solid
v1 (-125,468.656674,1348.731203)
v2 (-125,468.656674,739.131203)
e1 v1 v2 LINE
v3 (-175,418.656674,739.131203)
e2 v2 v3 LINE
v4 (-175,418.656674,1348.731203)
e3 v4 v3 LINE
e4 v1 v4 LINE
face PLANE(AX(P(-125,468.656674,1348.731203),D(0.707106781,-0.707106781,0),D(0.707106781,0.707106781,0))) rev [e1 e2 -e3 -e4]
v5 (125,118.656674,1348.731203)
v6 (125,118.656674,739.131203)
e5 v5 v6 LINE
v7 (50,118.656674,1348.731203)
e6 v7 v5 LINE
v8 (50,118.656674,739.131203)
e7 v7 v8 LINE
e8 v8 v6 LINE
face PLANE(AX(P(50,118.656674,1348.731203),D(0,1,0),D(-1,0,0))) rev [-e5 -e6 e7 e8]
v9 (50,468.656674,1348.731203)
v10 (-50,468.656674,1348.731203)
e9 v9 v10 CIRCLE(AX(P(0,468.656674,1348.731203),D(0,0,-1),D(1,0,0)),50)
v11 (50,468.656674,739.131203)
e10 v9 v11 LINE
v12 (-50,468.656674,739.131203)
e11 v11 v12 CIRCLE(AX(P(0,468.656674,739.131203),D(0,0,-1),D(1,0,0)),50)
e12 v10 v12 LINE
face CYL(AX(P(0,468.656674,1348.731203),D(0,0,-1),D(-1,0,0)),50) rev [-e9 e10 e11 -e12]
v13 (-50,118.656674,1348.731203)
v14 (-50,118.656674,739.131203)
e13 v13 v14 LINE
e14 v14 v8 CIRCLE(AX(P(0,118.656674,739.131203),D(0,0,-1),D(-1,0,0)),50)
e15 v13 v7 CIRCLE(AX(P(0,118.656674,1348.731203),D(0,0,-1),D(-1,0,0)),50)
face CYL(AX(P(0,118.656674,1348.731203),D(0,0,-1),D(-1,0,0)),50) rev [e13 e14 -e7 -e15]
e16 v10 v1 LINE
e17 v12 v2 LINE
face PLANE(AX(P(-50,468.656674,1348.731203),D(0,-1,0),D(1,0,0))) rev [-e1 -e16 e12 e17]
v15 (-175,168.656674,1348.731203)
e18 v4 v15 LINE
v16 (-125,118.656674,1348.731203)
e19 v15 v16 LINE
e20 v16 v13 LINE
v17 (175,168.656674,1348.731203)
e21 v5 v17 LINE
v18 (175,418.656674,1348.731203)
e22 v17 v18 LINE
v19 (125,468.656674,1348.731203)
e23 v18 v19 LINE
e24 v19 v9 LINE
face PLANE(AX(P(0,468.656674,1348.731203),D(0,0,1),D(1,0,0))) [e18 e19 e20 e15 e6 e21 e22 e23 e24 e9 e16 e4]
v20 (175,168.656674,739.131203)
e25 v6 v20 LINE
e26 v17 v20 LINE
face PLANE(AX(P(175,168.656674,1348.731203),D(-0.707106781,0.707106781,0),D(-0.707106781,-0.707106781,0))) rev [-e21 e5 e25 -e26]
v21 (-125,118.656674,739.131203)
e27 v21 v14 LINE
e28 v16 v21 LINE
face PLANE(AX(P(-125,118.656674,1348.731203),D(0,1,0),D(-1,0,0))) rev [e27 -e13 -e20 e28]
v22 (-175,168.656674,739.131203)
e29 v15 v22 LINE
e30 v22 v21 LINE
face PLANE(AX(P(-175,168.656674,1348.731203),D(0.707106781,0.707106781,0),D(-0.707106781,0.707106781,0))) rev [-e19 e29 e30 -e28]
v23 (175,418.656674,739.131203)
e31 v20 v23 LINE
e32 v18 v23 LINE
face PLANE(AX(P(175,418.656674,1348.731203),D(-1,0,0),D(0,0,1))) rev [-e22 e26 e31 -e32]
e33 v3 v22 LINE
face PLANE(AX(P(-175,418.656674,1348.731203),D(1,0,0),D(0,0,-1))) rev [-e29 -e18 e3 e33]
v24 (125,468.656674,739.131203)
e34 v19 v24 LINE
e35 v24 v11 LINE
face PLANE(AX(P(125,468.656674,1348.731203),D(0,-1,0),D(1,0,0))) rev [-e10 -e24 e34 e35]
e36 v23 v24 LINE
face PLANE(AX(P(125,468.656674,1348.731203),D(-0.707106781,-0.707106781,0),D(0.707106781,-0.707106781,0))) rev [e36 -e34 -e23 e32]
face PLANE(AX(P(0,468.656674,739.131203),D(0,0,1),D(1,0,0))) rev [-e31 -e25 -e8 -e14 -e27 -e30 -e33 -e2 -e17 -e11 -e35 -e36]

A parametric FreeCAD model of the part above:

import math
import FreeCAD as App
import Part
import Sketcher
from FreeCAD import Vector
Q = App.Units.Quantity

doc = App.newDocument("Part")
params = doc.addObject("Spreadsheet::Sheet", "Params")
for row, (alias, value) in enumerate([
    ("sketch1_radius", "50 mm"),
    ("sketch1_width", "75 mm"),
    ("sketch1_height", "250 mm"),
    ("pad1_length", "609.6 mm"),
], start=1):
    params.set(f"A{row}", alias)
    params.set(f"B{row}", "=" + value)
    params.setAlias(f"B{row}", alias)

body = doc.addObject("PartDesign::Body", "Body")

sketch1 = doc.addObject("Sketcher::SketchObject", "Sketch")
body.addObject(sketch1)
sketch1.AttachmentSupport = (doc.XY_Plane, [""])
sketch1.MapMode = "FlatFace"
sketch1.AttachmentOffset = App.Placement(Vector(0, 0, 1043.931203), App.Rotation())
sketch1.addGeometry([
    Part.LineSegment(Vector(125, 469, 0), Vector(50, 469, 0)),
    Part.ArcOfCircle(Part.Circle(Vector(0, 469, 0), Vector(0, 0, 1), 50), math.radians(180), math.radians(360)),
    Part.LineSegment(Vector(-50, 469, 0), Vector(-125, 469, 0)),
    Part.LineSegment(Vector(-125, 469, 0), Vector(-175, 419, 0)),
    Part.LineSegment(Vector(-175, 419, 0), Vector(-175, 169, 0)),
    Part.LineSegment(Vector(-175, 169, 0), Vector(-125, 119, 0)),
    Part.LineSegment(Vector(-125, 119, 0), Vector(-50, 119, 0)),
    Part.ArcOfCircle(Part.Circle(Vector(0, 119, 0), Vector(0, 0, 1), 50), math.radians(0), math.radians(180)),
    Part.LineSegment(Vector(50, 119, 0), Vector(125, 119, 0)),
    Part.LineSegment(Vector(125, 119, 0), Vector(175, 169, 0)),
    Part.LineSegment(Vector(175, 169, 0), Vector(175, 419, 0)),
    Part.LineSegment(Vector(175, 419, 0), Vector(125, 469, 0)),
], False)
sketch1.addConstraint([
    Sketcher.Constraint("Coincident", 0, 2, 1, 2),
    Sketcher.Constraint("Coincident", 1, 1, 2, 1),
    Sketcher.Constraint("Coincident", 2, 2, 3, 1),
    Sketcher.Constraint("Coincident", 3, 2, 4, 1),
    Sketcher.Constraint("Coincident", 4, 2, 5, 1),
    Sketcher.Constraint("Coincident", 5, 2, 6, 1),
    Sketcher.Constraint("Coincident", 6, 2, 7, 2),
    Sketcher.Constraint("Coincident", 7, 1, 8, 1),
    Sketcher.Constraint("Coincident", 8, 2, 9, 1),
    Sketcher.Constraint("Coincident", 9, 2, 10, 1),
    Sketcher.Constraint("Coincident", 10, 2, 11, 1),
    Sketcher.Constraint("Coincident", 11, 2, 0, 1),
    Sketcher.Constraint("Horizontal", 0),
    Sketcher.Constraint("Horizontal", 2),
    Sketcher.Constraint("Vertical", 4),
    Sketcher.Constraint("Horizontal", 6),
    Sketcher.Constraint("Horizontal", 8),
    Sketcher.Constraint("Vertical", 10),
    Sketcher.Constraint("Equal", 1, 7),
    Sketcher.Constraint("Symmetric", 0, 2, 1, 1, -2),
    Sketcher.Constraint("Symmetric", 6, 2, 7, 1, -2),
    Sketcher.Constraint("Symmetric", 4, 2, 9, 2, -2),
    Sketcher.Constraint("Perpendicular", 3, 5),
    Sketcher.Constraint("Perpendicular", 5, 9),
    Sketcher.Constraint("Perpendicular", 9, 11),
    Sketcher.Constraint("Horizontal", 1, 3, 0, 2),
    Sketcher.Constraint("Horizontal", 7, 3, 5, 2),
    Sketcher.Constraint("Horizontal", 3, 2, 10, 2),
    Sketcher.Constraint("Vertical", 2, 2, 5, 2),
    Sketcher.Constraint("Vertical", 8, 2, 11, 2),
    Sketcher.Constraint("Radius", 1, Q("50 mm")),
    Sketcher.Constraint("DistanceX", 0, 2, 0, 1, Q("75 mm")),
    Sketcher.Constraint("DistanceY", 4, 2, 4, 1, Q("250 mm")),
    Sketcher.Constraint("DistanceX", 3, 2, -1, 1, Q("175 mm")),
    Sketcher.Constraint("DistanceY", -1, 1, 1, 3, Q("468.656674 mm")),
])
sketch1.setExpression("Constraints[30]", "Params.sketch1_radius")
sketch1.setExpression("Constraints[31]", "Params.sketch1_width")
sketch1.setExpression("Constraints[32]", "Params.sketch1_height")
pad1 = doc.addObject("PartDesign::Pad", "Pad")
body.addObject(pad1)
pad1.Profile = sketch1
pad1.setExpression("Length", "Params.pad1_length")
pad1.Midplane = True

doc.recompute()
